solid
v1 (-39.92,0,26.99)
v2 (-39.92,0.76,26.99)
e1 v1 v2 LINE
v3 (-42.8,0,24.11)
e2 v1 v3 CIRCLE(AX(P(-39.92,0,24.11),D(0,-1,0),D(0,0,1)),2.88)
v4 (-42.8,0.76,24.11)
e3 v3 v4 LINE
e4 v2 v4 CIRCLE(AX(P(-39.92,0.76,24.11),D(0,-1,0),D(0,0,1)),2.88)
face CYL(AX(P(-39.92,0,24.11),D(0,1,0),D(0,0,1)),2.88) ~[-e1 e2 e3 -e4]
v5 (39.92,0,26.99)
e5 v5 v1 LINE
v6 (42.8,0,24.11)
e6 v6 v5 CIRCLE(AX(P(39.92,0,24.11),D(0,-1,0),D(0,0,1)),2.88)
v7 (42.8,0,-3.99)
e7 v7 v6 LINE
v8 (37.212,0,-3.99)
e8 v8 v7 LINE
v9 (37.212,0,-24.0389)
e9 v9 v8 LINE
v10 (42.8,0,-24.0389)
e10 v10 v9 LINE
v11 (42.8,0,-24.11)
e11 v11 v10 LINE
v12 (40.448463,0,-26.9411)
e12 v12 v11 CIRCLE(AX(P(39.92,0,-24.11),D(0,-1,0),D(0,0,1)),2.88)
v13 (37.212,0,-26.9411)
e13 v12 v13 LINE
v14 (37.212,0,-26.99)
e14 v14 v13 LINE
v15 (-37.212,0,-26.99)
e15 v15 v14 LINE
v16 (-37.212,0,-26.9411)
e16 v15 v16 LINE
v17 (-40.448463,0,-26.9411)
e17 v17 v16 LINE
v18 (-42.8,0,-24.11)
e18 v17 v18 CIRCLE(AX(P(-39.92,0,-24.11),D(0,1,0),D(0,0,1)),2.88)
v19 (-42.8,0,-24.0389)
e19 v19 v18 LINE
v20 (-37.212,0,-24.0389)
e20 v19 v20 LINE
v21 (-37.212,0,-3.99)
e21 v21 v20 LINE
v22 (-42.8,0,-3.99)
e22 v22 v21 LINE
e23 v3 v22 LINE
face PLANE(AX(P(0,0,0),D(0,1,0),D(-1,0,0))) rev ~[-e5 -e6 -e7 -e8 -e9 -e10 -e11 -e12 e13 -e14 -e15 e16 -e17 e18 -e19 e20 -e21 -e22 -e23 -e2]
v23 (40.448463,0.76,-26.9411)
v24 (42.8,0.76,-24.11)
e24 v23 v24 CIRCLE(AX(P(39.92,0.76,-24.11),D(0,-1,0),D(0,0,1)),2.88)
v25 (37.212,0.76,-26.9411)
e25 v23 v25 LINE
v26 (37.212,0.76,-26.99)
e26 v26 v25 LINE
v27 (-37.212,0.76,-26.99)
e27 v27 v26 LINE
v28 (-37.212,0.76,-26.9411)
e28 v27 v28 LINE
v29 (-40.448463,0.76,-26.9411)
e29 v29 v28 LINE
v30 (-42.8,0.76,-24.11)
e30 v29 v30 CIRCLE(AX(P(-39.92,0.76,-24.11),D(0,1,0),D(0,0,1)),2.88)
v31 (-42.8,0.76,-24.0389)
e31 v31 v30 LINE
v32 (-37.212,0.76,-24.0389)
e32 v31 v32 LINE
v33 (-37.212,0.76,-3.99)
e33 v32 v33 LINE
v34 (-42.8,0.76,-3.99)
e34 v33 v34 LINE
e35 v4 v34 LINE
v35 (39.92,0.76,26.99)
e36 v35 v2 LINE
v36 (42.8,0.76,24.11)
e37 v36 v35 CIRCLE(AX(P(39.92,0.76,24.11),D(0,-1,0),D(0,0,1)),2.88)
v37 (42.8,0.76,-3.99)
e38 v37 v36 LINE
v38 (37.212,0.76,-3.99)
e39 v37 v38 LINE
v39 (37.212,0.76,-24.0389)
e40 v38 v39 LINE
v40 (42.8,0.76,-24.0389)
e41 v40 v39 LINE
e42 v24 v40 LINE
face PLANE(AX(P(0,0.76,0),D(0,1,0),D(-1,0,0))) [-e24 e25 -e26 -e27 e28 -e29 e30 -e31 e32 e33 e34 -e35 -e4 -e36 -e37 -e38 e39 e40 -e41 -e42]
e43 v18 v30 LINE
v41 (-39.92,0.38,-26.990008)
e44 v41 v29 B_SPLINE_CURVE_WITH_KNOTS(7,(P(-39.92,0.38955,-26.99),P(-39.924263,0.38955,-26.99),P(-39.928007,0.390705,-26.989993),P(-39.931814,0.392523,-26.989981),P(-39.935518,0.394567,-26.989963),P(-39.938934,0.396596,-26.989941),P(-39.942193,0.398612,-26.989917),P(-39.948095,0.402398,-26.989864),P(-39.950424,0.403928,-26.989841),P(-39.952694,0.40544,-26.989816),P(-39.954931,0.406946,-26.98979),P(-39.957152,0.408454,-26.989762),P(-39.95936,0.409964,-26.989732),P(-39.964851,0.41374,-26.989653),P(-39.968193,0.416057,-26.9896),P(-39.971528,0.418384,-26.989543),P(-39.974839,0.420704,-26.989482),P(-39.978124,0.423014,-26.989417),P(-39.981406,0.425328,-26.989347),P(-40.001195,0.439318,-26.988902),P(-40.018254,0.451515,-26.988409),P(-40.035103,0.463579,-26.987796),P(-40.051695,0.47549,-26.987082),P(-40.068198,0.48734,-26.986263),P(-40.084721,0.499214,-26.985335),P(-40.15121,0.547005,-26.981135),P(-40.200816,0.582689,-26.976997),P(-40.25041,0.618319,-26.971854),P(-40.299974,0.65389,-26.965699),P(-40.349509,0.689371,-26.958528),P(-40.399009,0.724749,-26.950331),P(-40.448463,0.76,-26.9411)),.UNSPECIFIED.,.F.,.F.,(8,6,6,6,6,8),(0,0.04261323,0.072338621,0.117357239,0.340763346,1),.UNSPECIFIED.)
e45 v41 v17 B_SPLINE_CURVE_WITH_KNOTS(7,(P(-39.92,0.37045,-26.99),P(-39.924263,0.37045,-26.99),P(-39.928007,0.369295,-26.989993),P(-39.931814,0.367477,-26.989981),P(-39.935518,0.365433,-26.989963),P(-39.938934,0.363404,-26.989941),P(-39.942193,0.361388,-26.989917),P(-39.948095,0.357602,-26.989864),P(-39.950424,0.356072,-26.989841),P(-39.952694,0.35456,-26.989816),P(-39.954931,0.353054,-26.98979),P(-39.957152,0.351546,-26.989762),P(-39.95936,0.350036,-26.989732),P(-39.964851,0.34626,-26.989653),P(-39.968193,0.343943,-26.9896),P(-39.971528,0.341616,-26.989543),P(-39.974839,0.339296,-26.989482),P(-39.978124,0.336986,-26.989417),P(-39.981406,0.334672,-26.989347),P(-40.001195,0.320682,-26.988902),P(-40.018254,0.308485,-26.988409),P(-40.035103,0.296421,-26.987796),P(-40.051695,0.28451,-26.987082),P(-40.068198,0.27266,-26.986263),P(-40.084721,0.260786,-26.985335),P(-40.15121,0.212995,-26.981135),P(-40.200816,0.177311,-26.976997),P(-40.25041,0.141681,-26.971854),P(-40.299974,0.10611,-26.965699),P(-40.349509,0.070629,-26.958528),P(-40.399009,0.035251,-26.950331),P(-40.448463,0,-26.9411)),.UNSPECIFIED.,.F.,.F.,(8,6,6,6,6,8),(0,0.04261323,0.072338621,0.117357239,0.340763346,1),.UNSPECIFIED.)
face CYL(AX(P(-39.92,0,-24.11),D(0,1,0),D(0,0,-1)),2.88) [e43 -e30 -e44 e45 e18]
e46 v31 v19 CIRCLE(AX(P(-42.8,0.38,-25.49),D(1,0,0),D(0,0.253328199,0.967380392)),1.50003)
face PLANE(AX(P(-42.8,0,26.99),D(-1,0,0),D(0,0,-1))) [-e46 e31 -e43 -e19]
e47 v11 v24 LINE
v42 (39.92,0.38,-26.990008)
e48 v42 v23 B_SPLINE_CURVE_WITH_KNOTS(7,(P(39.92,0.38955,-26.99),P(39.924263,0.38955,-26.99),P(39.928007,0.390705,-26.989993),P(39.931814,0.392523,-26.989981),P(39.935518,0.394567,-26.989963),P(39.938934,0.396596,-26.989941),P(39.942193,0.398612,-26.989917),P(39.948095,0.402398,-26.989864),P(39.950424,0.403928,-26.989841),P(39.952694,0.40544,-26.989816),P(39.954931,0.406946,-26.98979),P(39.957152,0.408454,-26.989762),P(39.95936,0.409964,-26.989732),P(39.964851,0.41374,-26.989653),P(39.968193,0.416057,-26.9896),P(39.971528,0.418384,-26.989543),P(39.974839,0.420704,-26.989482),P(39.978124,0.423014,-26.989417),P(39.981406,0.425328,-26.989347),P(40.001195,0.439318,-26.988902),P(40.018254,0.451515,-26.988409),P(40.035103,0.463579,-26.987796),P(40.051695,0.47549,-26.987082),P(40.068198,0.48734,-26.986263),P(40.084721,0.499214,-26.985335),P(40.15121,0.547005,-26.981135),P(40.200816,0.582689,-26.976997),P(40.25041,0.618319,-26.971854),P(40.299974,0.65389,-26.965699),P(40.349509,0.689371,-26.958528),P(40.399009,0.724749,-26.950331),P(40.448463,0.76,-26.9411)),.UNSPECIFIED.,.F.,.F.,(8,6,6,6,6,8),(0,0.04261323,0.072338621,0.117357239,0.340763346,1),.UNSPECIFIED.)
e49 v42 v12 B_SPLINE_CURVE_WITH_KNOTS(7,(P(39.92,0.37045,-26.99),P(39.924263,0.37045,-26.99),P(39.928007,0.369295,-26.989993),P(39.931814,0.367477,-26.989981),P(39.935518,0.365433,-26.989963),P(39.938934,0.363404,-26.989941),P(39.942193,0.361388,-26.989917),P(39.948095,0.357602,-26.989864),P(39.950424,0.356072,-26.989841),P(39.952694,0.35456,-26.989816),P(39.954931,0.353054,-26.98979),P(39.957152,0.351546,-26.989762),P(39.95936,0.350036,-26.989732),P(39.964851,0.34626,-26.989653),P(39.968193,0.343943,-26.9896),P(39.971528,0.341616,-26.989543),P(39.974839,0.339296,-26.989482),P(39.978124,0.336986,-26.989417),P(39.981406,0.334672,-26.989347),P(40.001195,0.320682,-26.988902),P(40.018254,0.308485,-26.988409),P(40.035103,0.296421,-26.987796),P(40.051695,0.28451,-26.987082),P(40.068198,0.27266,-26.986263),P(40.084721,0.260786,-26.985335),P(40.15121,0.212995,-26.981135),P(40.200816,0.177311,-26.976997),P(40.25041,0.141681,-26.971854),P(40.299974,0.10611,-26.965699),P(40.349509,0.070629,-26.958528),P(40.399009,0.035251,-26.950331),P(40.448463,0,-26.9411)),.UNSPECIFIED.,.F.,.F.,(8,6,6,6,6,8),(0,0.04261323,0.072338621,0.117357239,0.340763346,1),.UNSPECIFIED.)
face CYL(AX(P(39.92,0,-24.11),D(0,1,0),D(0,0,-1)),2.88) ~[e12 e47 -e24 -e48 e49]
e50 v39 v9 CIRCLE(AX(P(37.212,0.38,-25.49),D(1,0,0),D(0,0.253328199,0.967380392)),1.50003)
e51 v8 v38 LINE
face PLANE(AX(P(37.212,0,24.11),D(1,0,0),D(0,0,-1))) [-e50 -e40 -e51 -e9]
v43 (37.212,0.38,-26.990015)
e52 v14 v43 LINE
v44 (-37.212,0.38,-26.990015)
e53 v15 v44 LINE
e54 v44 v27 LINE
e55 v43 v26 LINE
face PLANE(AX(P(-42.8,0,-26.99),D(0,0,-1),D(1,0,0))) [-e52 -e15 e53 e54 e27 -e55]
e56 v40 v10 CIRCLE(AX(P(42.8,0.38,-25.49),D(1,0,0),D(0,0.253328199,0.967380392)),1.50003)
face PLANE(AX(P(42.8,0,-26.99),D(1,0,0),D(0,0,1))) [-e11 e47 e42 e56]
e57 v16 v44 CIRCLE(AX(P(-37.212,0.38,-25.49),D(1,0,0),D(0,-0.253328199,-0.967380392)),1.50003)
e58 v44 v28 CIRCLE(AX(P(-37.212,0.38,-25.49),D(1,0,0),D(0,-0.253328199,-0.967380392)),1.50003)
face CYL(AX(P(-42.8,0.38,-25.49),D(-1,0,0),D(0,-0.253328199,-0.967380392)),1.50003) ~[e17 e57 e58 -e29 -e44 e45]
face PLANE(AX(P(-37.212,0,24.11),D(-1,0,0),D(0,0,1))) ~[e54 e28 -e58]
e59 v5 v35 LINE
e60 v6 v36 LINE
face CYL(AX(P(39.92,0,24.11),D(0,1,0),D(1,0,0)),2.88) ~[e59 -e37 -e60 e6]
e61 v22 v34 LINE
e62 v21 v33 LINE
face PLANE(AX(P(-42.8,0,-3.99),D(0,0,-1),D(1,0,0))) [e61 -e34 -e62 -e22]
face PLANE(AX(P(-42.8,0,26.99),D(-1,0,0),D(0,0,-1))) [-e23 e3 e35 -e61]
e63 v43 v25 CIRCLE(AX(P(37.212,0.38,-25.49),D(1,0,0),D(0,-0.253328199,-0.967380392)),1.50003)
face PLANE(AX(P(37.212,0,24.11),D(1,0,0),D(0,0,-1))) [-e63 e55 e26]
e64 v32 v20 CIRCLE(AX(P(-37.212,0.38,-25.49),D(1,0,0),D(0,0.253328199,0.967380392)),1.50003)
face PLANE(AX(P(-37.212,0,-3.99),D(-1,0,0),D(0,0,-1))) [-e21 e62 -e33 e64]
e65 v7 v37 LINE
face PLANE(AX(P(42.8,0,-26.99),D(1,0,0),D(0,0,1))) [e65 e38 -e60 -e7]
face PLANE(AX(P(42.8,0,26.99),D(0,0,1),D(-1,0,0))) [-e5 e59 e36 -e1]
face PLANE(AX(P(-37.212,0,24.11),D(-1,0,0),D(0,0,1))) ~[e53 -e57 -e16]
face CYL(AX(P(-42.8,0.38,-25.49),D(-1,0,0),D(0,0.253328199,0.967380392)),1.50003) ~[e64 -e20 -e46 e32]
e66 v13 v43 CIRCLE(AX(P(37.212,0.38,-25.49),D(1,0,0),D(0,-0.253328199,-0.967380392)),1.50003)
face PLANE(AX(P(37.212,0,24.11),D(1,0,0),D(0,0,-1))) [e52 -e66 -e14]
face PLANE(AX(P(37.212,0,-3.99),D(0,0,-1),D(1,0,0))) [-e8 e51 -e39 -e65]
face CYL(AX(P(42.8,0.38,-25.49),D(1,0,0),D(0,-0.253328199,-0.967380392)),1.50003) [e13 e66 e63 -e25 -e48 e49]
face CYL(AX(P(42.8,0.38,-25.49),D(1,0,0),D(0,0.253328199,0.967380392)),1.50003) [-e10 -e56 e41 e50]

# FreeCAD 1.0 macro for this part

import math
import FreeCAD as App
import Part
import Sketcher

V = App.Vector
Q = App.Units.Quantity


def edges_at(feature, points):
    """Names of the edges that pass closest to the given points."""
    edges = feature.Shape.Edges
    near = lambda p: min(range(len(edges)), key=lambda i: edges[i].distToShape(Part.Vertex(*p))[0])
    return sorted({f"Edge{near(p) + 1}" for p in points})


def add_polygon(sketch, points):
    """Adds a closed chain of lines whose ends are joined by coincident constraints."""
    first, n = sketch.GeometryCount, len(points)
    for a, b in zip(points, points[1:] + points[:1]):
        sketch.addGeometry(Part.LineSegment(App.Vector(*a, 0), App.Vector(*b, 0)), False)
    for i in range(n):
        sketch.addConstraint(Sketcher.Constraint("Coincident", first + i, 2, first + (i + 1) % n, 1))

doc = App.newDocument("Part")
body = doc.addObject("PartDesign::Body", "Body")

sketch1 = body.newObject("Sketcher::SketchObject", "Sketch")
sketch1.AttachmentSupport = (doc.getObject("XZ_Plane"), [""])
sketch1.MapMode = "FlatFace"
add_polygon(sketch1, [(43, -27), (-43, -27), (-43, 27), (43, 27)])
sketch1.addConstraint(Sketcher.Constraint("Horizontal", 0))
sketch1.addConstraint(Sketcher.Constraint("Vertical", 1))
sketch1.addConstraint(Sketcher.Constraint("Horizontal", 2))
sketch1.addConstraint(Sketcher.Constraint("Vertical", 3))
sketch1.addConstraint(Sketcher.Constraint("Symmetric", 0, 2, 2, 2, -1, 1))
sketch1.addConstraint(Sketcher.Constraint("DistanceX", 0, 2, 0, 1, Q("85.6 mm")))
sketch1.addConstraint(Sketcher.Constraint("DistanceY", 1, 1, 1, 2, Q("53.98 mm")))
pad1 = body.newObject("PartDesign::Pad", "Pad")
pad1.Profile = sketch1
pad1.Length = 0.76
pad1.Reversed = True
doc.recompute()

fillet = body.newObject("PartDesign::Fillet", "Fillet")
fillet.Base = (pad1, edges_at(pad1, [
    (42.8, 0.38, 26.99),
    (42.8, 0.38, -26.99),
    (-42.8, 0.38, 26.99),
    (-42.8, 0.38, -26.99),
]))
fillet.Radius = 2.88

sketch2 = body.newObject("Sketcher::SketchObject", "Sketch001")
sketch2.AttachmentSupport = (doc.getObject("XZ_Plane"), [""])
sketch2.MapMode = "FlatFace"
add_polygon(sketch2, [(-43, -4), (-43, -24), (-37, -24), (-37, -4)])
add_polygon(sketch2, [(37, -24), (43, -24), (43, -4), (37, -4)])
sketch2.addConstraint(Sketcher.Constraint("Vertical", 0))
sketch2.addConstraint(Sketcher.Constraint("Horizontal", 1))
sketch2.addConstraint(Sketcher.Constraint("Vertical", 2))
sketch2.addConstraint(Sketcher.Constraint("Horizontal", 3))
sketch2.addConstraint(Sketcher.Constraint("Horizontal", 4))
sketch2.addConstraint(Sketcher.Constraint("Vertical", 5))
sketch2.addConstraint(Sketcher.Constraint("Horizontal", 6))
sketch2.addConstraint(Sketcher.Constraint("Vertical", 7))
sketch2.addConstraint(Sketcher.Constraint("Symmetric", 0, 2, 4, 2, -2))
sketch2.addConstraint(Sketcher.Constraint("Symmetric", 2, 2, 6, 2, -2))
sketch2.addConstraint(Sketcher.Constraint("DistanceY", 0, 2, 0, 1, Q("20 mm")))
sketch2.addConstraint(Sketcher.Constraint("DistanceX", 1, 1, 1, 2, Q("5.588 mm")))
sketch2.addConstraint(Sketcher.Constraint("DistanceX", 0, 2, -1, 1, Q("42.8 mm")))
sketch2.addConstraint(Sketcher.Constraint("DistanceY", 0, 2, -1, 1, Q("23.99 mm")))
pocket1 = body.newObject("PartDesign::Pocket", "Pocket")
pocket1.Profile = sketch2
pocket1.Type = "ThroughAll"

sketch3 = body.newObject("Sketcher::SketchObject", "Sketch002")
sketch3.AttachmentSupport = (doc.getObject("YZ_Plane"), [""])
sketch3.MapMode = "FlatFace"
sketch3.AttachmentOffset = App.Placement(V(0, 0, 42.8), App.Rotation())
sketch3.addGeometry(Part.LineSegment(V(0, -26.941, 0), V(0, -26.99, 0)), False)
sketch3.addGeometry(Part.LineSegment(V(0, -26.99, 0), V(0.38, -26.99, 0)), False)
sketch3.addGeometry(Part.ArcOfCircle(Part.Circle(V(0.38, -25.49, 0), V(0, 0, 1), 1.5), math.radians(-104.67), math.radians(-90)), False)
sketch3.addGeometry(Part.ArcOfCircle(Part.Circle(V(0.38, -25.49, 0), V(0, 0, 1), 1.5), math.radians(-90), math.radians(-75.33)), False)
sketch3.addGeometry(Part.LineSegment(V(0.38, -26.99, 0), V(0.76, -26.99, 0)), False)
sketch3.addGeometry(Part.LineSegment(V(0.76, -26.99, 0), V(0.76, -26.941, 0)), False)
sketch3.addGeometry(Part.LineSegment(V(0.76, -24.039, 0), V(0.76, -23.99, 0)), False)
sketch3.addGeometry(Part.LineSegment(V(0.76, -23.99, 0), V(0.38, -23.99, 0)), False)
sketch3.addGeometry(Part.ArcOfCircle(Part.Circle(V(0.38, -25.49, 0), V(0, 0, 1), 1.5), math.radians(75.33), math.radians(90)), False)
sketch3.addGeometry(Part.ArcOfCircle(Part.Circle(V(0.38, -25.49, 0), V(0, 0, 1), 1.5), math.radians(90), math.radians(104.67)), False)
sketch3.addGeometry(Part.LineSegment(V(0.38, -23.99, 0), V(0, -23.99, 0)), False)
sketch3.addGeometry(Part.LineSegment(V(0, -23.99, 0), V(0, -24.039, 0)), False)
sketch3.addConstraint(Sketcher.Constraint("Coincident", 0, 2, 1, 1))
sketch3.addConstraint(Sketcher.Constraint("Tangent", 1, 2, 2, 2))
sketch3.addConstraint(Sketcher.Constraint("Coincident", 2, 1, 0, 1))
sketch3.addConstraint(Sketcher.Constraint("Tangent", 3, 1, 4, 1))
sketch3.addConstraint(Sketcher.Constraint("Coincident", 4, 2, 5, 1))
sketch3.addConstraint(Sketcher.Constraint("Coincident", 5, 2, 3, 2))
sketch3.addConstraint(Sketcher.Constraint("Coincident", 6, 2, 7, 1))
sketch3.addConstraint(Sketcher.Constraint("Tangent", 7, 2, 8, 2))
sketch3.addConstraint(Sketcher.Constraint("Coincident", 8, 1, 6, 1))
sketch3.addConstraint(Sketcher.Constraint("Tangent", 9, 1, 10, 1))
sketch3.addConstraint(Sketcher.Constraint("Coincident", 10, 2, 11, 1))
sketch3.addConstraint(Sketcher.Constraint("Coincident", 11, 2, 9, 2))
sketch3.addConstraint(Sketcher.Constraint("Vertical", 0))
sketch3.addConstraint(Sketcher.Constraint("Horizontal", 1))
sketch3.addConstraint(Sketcher.Constraint("Horizontal", 4))
sketch3.addConstraint(Sketcher.Constraint("Vertical", 5))
sketch3.addConstraint(Sketcher.Constraint("Vertical", 6))
sketch3.addConstraint(Sketcher.Constraint("Horizontal", 7))
sketch3.addConstraint(Sketcher.Constraint("Horizontal", 10))
sketch3.addConstraint(Sketcher.Constraint("Vertical", 11))
sketch3.addConstraint(Sketcher.Constraint("Coincident", 3, 3, 2, 3))
sketch3.addConstraint(Sketcher.Constraint("Coincident", 8, 3, 2, 3))
sketch3.addConstraint(Sketcher.Constraint("Coincident", 9, 3, 2, 3))
sketch3.addConstraint(Sketcher.Constraint("Equal", 2, 3))
sketch3.addConstraint(Sketcher.Constraint("Equal", 3, 8))
sketch3.addConstraint(Sketcher.Constraint("Equal", 8, 9))
sketch3.addConstraint(Sketcher.Constraint("PointOnObject", 0, 2, -2))
sketch3.addConstraint(Sketcher.Constraint("PointOnObject", 10, 2, -2))
sketch3.addConstraint(Sketcher.Constraint("Horizontal", 2, 1, 5, 2))
sketch3.addConstraint(Sketcher.Constraint("Horizontal", 8, 1, 11, 2))
sketch3.addConstraint(Sketcher.Constraint("Radius", 2, Q("1.5 mm")))
sketch3.addConstraint(Sketcher.Constraint("DistanceX", -1, 1, 4, 2, Q("0.76 mm")))
sketch3.addConstraint(Sketcher.Constraint("DistanceY", 2, 3, -1, 1, Q("25.49 mm")))
pocket2 = body.newObject("PartDesign::Pocket", "Pocket001")
pocket2.Profile = sketch3
pocket2.Length = 5.588
doc.recompute()

mirrored = body.newObject("PartDesign::Mirrored", "Mirrored")
mirrored.Originals = [pocket2]
mirrored.MirrorPlane = (doc.getObject("YZ_Plane"), [""])
body.Tip = mirrored

doc.recompute()
